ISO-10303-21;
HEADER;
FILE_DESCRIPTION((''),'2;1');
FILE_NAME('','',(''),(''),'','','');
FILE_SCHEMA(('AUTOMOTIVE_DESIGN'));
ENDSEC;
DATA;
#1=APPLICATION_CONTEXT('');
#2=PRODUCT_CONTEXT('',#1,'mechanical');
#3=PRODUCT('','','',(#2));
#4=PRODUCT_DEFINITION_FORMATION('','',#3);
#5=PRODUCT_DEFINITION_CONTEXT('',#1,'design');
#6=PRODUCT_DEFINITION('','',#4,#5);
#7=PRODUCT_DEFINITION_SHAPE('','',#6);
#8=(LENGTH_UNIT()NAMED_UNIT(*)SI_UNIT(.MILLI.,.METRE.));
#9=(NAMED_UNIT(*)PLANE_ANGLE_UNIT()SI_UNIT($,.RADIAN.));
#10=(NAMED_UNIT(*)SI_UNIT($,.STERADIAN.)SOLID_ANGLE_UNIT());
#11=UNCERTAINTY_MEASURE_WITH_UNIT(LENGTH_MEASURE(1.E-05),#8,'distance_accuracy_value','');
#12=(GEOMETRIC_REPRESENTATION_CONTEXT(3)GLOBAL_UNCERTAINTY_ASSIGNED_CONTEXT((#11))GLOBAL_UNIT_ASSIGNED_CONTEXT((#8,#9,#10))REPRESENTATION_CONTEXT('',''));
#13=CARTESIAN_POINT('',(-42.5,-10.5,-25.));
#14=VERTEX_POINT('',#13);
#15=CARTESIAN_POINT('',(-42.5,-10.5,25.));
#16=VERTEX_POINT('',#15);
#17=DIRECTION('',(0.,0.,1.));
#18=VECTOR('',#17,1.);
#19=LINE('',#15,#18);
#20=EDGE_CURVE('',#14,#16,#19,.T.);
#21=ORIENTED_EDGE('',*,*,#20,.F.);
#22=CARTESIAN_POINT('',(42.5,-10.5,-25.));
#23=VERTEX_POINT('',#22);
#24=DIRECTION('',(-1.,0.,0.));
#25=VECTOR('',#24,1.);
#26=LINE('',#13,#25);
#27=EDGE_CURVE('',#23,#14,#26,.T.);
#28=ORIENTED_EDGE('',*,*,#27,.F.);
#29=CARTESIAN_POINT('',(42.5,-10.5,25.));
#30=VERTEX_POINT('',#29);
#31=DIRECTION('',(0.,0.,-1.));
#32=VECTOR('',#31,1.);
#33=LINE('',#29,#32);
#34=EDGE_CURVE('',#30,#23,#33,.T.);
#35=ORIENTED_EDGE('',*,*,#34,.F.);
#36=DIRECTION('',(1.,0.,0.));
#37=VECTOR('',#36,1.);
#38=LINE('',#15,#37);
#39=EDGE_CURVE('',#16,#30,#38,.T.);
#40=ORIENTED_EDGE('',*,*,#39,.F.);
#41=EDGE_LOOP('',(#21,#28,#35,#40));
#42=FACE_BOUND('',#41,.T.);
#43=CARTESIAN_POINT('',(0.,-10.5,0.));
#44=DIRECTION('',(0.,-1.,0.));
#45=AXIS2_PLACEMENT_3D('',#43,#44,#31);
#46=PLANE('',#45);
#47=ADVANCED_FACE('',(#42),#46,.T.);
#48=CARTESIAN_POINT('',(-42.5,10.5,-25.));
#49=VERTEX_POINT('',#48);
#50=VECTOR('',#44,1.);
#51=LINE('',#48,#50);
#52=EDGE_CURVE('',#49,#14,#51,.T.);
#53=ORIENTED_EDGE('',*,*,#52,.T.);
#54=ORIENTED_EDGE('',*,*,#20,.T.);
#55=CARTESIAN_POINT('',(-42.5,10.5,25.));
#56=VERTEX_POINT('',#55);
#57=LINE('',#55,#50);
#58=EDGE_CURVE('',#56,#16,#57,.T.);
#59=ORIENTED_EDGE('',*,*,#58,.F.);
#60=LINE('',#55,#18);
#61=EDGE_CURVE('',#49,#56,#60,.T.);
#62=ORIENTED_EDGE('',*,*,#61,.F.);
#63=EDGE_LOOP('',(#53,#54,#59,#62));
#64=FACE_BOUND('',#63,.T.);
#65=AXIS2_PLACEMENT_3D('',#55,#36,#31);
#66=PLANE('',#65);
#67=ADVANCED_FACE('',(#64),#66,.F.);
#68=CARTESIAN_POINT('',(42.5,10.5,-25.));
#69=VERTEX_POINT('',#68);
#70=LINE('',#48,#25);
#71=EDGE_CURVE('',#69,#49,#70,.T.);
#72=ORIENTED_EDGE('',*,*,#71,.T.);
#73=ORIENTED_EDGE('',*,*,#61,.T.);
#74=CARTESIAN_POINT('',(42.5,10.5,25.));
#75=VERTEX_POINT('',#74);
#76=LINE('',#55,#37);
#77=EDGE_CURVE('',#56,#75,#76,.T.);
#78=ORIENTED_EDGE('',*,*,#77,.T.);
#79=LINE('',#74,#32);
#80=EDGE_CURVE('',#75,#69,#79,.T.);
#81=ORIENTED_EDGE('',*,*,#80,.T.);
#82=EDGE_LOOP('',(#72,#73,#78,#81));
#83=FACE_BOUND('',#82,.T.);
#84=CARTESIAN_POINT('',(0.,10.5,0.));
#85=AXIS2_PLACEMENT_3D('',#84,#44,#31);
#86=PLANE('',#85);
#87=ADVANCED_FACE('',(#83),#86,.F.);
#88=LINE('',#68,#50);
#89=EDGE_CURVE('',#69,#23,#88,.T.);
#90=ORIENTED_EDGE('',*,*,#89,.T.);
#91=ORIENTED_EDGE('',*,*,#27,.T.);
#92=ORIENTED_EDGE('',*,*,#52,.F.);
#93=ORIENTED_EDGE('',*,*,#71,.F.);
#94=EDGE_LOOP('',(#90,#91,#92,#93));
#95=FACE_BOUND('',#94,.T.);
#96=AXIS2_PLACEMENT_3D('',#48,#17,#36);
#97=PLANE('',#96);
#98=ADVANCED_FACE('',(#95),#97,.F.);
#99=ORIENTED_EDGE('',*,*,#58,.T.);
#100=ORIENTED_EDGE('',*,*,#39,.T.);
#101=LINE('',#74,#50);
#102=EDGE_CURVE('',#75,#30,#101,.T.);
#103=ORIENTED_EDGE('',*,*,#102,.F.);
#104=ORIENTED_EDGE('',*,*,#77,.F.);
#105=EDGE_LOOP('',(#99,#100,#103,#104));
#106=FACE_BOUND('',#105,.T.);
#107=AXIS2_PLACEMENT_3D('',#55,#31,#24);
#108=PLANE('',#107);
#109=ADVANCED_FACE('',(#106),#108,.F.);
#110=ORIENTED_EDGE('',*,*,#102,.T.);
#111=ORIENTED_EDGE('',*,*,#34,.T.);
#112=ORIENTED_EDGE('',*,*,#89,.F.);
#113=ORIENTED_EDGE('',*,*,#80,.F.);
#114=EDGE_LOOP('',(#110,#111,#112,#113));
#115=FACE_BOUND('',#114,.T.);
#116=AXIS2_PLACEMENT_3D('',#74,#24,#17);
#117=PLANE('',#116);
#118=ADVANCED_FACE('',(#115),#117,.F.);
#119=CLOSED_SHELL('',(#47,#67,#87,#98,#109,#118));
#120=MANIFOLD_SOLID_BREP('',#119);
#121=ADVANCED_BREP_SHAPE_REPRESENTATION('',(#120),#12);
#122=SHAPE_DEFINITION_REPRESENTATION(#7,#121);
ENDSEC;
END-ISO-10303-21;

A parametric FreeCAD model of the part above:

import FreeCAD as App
import Part
import Sketcher
from FreeCAD import Vector
Q = App.Units.Quantity


def add_polygon(sketch, points):
    """Adds a closed chain of lines whose ends are joined by coincident constraints."""
    first, n = sketch.GeometryCount, len(points)
    for a, b in zip(points, points[1:] + points[:1]):
        sketch.addGeometry(Part.LineSegment(App.Vector(*a, 0), App.Vector(*b, 0)), False)
    for i in range(n):
        sketch.addConstraint(Sketcher.Constraint("Coincident", first + i, 2, first + (i + 1) % n, 1))

doc = App.newDocument("Part")
params = doc.addObject("Spreadsheet::Sheet", "Params")
for row, (alias, value) in enumerate([
    ("sketch1_width", "85 mm"),
    ("sketch1_height", "50 mm"),
    ("pad1_length", "21 mm"),
], start=1):
    params.set(f"A{row}", alias)
    params.set(f"B{row}", "=" + value)
    params.setAlias(f"B{row}", alias)

body = doc.addObject("PartDesign::Body", "Body")

sketch1 = body.newObject("Sketcher::SketchObject", "Sketch")
sketch1.AttachmentSupport = (doc.getObject("XZ_Plane"), [""])
sketch1.MapMode = "FlatFace"
add_polygon(sketch1, [(-42, -25), (-42, 25), (42, 25), (42, -25)])
sketch1.addConstraint(Sketcher.Constraint("Vertical", 0))
sketch1.addConstraint(Sketcher.Constraint("Horizontal", 1))
sketch1.addConstraint(Sketcher.Constraint("Vertical", 2))
sketch1.addConstraint(Sketcher.Constraint("Horizontal", 3))
sketch1.addConstraint(Sketcher.Constraint("Symmetric", 0, 2, 2, 2, -1, 1))
sketch1.addConstraint(Sketcher.Constraint("DistanceX", 1, 1, 1, 2, Q("85 mm")))
sketch1.addConstraint(Sketcher.Constraint("DistanceY", 0, 1, 0, 2, Q("50 mm")))
sketch1.setExpression("Constraints[9]", "Params.sketch1_width")
sketch1.setExpression("Constraints[10]", "Params.sketch1_height")
pad1 = body.newObject("PartDesign::Pad", "Pad")
pad1.Profile = sketch1
pad1.setExpression("Length", "Params.pad1_length")
pad1.Midplane = True

doc.recompute()
